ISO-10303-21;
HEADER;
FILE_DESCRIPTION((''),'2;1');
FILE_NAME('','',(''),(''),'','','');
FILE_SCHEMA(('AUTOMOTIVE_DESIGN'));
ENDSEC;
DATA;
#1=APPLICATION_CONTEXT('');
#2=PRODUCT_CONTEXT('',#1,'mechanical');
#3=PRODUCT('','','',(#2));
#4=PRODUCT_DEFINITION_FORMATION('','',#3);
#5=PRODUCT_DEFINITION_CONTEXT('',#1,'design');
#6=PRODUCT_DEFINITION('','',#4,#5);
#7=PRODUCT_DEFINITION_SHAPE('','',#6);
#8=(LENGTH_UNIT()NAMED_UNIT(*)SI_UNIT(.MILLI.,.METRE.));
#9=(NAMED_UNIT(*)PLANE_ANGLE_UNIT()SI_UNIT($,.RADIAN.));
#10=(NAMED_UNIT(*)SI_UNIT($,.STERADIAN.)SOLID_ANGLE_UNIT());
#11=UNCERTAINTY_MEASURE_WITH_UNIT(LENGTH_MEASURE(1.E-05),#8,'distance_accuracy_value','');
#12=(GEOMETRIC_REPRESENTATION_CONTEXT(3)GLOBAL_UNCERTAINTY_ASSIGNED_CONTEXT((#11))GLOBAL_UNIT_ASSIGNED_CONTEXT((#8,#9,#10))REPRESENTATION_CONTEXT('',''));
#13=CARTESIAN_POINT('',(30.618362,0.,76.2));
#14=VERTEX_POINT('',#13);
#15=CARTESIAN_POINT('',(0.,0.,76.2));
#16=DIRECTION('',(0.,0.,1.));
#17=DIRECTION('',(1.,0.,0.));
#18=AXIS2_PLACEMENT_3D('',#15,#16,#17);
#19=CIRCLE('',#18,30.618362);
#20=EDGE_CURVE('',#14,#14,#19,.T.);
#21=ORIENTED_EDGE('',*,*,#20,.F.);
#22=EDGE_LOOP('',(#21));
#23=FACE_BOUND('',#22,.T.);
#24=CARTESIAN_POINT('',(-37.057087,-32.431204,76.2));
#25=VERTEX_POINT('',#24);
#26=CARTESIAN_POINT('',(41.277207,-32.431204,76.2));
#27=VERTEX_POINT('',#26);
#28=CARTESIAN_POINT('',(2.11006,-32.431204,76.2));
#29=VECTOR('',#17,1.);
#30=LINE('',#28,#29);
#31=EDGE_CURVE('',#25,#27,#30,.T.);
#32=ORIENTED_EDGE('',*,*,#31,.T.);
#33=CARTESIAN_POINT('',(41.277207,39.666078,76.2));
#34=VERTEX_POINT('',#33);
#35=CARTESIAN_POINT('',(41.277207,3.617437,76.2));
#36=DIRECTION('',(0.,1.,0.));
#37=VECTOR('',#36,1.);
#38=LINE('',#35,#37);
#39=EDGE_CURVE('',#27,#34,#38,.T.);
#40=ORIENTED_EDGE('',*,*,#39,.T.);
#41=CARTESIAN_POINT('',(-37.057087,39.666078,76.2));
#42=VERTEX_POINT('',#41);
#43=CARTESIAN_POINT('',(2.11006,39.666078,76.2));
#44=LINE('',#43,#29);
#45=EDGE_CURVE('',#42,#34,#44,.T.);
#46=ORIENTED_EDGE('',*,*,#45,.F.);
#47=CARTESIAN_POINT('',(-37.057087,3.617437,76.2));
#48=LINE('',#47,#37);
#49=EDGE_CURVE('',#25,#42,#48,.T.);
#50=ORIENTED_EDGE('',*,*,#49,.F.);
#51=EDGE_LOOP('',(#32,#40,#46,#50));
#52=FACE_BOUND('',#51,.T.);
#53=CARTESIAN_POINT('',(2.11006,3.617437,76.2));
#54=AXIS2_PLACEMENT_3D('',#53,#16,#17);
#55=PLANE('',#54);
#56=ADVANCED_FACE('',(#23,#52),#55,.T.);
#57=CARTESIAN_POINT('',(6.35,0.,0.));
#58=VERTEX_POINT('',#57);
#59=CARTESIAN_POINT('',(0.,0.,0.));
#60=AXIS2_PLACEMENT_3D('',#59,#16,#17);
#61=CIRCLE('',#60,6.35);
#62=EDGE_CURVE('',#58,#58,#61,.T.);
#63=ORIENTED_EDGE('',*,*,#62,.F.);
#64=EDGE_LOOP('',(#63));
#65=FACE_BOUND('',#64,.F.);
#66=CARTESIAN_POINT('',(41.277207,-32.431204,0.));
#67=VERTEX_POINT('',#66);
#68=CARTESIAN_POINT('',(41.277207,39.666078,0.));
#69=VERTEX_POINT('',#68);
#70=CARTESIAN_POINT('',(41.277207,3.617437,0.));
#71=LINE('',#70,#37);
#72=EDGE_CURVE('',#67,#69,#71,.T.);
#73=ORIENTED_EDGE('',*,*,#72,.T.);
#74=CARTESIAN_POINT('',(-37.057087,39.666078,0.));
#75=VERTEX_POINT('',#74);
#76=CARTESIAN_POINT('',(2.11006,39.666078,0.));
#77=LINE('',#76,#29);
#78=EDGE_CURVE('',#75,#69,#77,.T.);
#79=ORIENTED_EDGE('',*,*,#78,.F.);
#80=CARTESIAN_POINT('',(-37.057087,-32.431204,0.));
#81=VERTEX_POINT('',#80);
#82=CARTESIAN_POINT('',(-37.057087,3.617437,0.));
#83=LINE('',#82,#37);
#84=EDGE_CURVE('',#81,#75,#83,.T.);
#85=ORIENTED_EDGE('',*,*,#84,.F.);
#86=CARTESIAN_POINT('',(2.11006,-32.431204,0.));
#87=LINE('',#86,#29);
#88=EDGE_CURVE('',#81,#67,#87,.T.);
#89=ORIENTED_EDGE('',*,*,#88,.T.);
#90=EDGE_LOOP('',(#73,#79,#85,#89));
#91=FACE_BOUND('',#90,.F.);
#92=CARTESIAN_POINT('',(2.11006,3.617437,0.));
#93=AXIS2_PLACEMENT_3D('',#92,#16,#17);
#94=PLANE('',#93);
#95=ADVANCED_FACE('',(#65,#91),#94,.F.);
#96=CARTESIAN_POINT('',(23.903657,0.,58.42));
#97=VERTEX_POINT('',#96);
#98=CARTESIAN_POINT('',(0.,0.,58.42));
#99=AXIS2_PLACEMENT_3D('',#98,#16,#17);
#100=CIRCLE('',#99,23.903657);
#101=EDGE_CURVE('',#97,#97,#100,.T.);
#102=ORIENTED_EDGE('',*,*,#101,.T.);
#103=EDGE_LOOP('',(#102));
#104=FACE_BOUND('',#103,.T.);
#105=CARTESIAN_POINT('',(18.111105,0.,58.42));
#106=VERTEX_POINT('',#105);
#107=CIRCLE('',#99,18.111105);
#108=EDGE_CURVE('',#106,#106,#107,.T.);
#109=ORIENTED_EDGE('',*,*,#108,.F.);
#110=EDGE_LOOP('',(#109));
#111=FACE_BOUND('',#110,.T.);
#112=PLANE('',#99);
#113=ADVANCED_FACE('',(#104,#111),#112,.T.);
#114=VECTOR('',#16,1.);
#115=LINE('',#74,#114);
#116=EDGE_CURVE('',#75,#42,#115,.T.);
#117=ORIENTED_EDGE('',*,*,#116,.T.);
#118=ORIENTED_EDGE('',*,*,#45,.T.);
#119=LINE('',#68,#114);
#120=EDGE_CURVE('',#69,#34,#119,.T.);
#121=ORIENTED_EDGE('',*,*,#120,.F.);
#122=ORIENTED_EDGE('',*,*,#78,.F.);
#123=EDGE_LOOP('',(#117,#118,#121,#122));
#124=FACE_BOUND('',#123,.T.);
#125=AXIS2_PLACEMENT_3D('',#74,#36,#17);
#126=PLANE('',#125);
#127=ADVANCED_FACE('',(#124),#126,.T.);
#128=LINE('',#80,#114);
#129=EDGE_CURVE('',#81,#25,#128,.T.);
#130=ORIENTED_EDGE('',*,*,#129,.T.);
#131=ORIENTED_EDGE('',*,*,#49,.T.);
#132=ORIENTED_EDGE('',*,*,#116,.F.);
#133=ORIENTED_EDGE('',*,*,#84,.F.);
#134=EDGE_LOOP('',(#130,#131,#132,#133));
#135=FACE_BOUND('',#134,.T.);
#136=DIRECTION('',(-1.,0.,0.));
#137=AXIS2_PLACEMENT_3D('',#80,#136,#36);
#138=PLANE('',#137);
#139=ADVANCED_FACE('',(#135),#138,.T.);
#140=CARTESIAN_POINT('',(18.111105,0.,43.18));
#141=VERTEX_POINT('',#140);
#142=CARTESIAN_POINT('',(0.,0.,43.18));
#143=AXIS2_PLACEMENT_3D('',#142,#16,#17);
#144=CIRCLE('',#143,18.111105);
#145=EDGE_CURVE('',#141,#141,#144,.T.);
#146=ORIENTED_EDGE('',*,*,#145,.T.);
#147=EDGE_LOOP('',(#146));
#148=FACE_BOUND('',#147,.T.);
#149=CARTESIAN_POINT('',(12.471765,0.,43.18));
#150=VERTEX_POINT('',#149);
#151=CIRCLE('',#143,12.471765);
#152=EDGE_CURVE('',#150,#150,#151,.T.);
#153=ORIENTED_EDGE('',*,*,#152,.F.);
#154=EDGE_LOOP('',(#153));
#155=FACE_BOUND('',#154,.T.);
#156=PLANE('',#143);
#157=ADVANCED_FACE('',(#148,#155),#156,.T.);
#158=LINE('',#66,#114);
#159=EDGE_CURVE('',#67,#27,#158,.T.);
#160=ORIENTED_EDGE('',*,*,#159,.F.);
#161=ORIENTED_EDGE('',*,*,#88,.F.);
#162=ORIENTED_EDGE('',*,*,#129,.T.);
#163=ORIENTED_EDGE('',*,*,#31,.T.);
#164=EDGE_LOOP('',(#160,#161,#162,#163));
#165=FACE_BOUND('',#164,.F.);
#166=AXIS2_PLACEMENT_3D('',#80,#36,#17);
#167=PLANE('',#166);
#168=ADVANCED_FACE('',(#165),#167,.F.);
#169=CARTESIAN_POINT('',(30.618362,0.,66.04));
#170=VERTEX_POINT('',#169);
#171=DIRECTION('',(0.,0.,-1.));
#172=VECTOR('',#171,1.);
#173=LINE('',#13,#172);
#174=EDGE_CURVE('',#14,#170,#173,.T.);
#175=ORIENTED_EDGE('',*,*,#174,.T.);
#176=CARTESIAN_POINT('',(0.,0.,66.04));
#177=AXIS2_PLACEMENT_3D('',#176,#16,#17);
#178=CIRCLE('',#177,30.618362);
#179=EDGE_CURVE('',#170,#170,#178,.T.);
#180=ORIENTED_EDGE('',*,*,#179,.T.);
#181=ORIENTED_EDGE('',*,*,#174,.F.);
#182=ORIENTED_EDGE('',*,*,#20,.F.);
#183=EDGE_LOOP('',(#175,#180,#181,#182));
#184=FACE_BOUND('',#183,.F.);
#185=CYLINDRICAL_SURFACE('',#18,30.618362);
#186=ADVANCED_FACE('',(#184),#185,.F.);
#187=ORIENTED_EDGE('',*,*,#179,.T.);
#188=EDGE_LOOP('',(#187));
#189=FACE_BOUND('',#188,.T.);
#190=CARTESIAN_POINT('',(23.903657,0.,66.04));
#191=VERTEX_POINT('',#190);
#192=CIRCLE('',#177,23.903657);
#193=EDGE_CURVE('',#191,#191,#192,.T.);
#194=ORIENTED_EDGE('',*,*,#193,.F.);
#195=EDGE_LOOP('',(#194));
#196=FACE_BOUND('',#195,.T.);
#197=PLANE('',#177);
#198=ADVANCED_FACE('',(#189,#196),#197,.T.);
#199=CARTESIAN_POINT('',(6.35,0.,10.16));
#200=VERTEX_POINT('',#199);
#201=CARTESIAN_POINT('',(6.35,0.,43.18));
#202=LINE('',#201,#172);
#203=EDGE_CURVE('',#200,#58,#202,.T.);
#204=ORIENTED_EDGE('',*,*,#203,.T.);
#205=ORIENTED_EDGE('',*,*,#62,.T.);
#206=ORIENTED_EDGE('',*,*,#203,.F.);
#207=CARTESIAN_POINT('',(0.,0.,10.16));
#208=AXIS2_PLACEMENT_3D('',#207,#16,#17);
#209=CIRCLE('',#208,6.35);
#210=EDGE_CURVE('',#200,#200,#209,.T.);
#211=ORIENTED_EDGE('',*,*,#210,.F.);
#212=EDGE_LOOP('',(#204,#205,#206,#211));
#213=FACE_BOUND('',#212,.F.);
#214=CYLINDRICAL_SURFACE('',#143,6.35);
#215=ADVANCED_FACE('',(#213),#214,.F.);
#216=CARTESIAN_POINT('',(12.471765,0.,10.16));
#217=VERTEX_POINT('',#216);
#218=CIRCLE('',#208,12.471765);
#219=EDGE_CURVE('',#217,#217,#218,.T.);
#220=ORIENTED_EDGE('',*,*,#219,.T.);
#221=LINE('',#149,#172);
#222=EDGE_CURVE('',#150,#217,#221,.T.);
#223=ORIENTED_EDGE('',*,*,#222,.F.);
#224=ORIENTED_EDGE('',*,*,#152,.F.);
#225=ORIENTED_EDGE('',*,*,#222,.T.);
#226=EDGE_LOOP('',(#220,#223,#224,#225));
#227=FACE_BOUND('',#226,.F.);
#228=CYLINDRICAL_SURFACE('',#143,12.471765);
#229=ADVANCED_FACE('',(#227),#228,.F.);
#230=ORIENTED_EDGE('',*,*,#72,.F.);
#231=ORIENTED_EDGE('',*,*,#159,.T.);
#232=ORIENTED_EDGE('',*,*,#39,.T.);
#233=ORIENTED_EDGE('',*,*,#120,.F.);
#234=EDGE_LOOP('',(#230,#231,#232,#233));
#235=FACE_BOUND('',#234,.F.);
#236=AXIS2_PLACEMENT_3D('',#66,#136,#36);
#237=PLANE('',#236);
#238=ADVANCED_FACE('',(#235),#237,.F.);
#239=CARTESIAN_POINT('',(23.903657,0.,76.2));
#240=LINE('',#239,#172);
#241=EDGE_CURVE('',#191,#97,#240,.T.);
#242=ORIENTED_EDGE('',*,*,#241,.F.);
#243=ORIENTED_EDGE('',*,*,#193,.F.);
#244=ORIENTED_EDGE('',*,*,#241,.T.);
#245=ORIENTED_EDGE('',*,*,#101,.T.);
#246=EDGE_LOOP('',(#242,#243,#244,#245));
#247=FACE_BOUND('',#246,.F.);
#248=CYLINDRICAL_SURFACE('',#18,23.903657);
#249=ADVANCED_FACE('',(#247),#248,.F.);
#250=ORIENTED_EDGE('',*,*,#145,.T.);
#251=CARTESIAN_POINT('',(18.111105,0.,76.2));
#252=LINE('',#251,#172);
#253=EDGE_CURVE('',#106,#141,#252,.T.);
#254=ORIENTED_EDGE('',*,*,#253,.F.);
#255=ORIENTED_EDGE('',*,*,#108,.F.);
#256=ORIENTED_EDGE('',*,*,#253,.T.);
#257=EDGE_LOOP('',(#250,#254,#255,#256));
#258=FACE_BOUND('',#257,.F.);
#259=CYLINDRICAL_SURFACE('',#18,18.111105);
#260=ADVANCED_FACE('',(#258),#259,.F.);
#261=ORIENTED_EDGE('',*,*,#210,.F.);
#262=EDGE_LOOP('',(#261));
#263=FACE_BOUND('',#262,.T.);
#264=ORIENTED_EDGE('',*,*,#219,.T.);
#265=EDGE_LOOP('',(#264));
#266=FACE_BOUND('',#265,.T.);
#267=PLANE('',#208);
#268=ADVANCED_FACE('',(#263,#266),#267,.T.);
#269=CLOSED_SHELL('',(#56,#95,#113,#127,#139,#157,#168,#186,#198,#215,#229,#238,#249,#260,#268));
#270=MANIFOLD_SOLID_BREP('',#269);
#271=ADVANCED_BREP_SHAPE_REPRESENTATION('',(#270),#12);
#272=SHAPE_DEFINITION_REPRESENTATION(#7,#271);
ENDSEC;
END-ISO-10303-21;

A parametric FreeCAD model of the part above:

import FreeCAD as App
import Part
import Sketcher
from FreeCAD import Vector
Q = App.Units.Quantity


def add_polygon(sketch, points):
    """Adds a closed chain of lines whose ends are joined by coincident constraints."""
    first, n = sketch.GeometryCount, len(points)
    for a, b in zip(points, points[1:] + points[:1]):
        sketch.addGeometry(Part.LineSegment(App.Vector(*a, 0), App.Vector(*b, 0)), False)
    for i in range(n):
        sketch.addConstraint(Sketcher.Constraint("Coincident", first + i, 2, first + (i + 1) % n, 1))

doc = App.newDocument("Part")
body = doc.addObject("PartDesign::Body", "Body")

# Sketch on XY plane
sketch1 = body.newObject("Sketcher::SketchObject", "Sketch")
sketch1.AttachmentSupport = (doc.getObject("XY_Plane"), [""])
sketch1.MapMode = "FlatFace"
add_polygon(sketch1, [(-37, 40), (-37, -32), (41, -32), (41, 40)])  # lines 0-3
sketch1.addConstraint([
    Sketcher.Constraint("Vertical", 0),
    Sketcher.Constraint("Horizontal", 1),
    Sketcher.Constraint("Vertical", 2),
    Sketcher.Constraint("Horizontal", 3),
    Sketcher.Constraint("DistanceX", 1, 1, 1, 2, Q("78.334294 mm")),
    Sketcher.Constraint("DistanceY", 0, 2, 0, 1, Q("72.097283 mm")),
    Sketcher.Constraint("DistanceY", -1, 1, 2, 2, Q("39.666078 mm")),
    Sketcher.Constraint("DistanceX", 0, 2, -1, 1, Q("37.057087 mm")),
])
pad1 = body.newObject("PartDesign::Pad", "Pad")
pad1.Profile = sketch1
pad1.Length = Q("3 in")

# Sketch on XY plane
sketch2 = body.newObject("Sketcher::SketchObject", "Sketch001")
sketch2.AttachmentSupport = (doc.getObject("XY_Plane"), [""])
sketch2.MapMode = "FlatFace"
sketch2.AttachmentOffset = App.Placement(Vector(0, 0, 3 * 25.4), App.Rotation())
sketch2.addGeometry(Part.Circle(Vector(0, 0, 0), Vector(0, 0, 1), 18), False)
sketch2.addConstraint([
    Sketcher.Constraint("Coincident", 0, 3, -1, 1),
    Sketcher.Constraint("Diameter", 0, Q("36.22221 mm")),
])
pocket1 = body.newObject("PartDesign::Pocket", "Pocket")
pocket1.Profile = sketch2
pocket1.Length = Q("1.3 in")

# Sketch on XY plane
sketch3 = body.newObject("Sketcher::SketchObject", "Sketch002")
sketch3.AttachmentSupport = (doc.getObject("XY_Plane"), [""])
sketch3.MapMode = "FlatFace"
sketch3.AttachmentOffset = App.Placement(Vector(0, 0, 1.7 * 25.4), App.Rotation())
sketch3.addGeometry(Part.Circle(Vector(0, 0, 0), Vector(0, 0, 1), 6), False)
sketch3.addConstraint([
    Sketcher.Constraint("Coincident", 0, 3, -1, 1),
    Sketcher.Constraint("Diameter", 0, Q("0.5 in")),
])
pocket2 = body.newObject("PartDesign::Pocket", "Pocket001")
pocket2.Profile = sketch3
pocket2.Length = Q("2 in")

# Sketch on XY plane
sketch4 = body.newObject("Sketcher::SketchObject", "Sketch003")
sketch4.AttachmentSupport = (doc.getObject("XY_Plane"), [""])
sketch4.MapMode = "FlatFace"
sketch4.AttachmentOffset = App.Placement(Vector(0, 0, 1.7 * 25.4), App.Rotation())
sketch4.addGeometry(Part.Circle(Vector(0, 0, 0), Vector(0, 0, 1), 12), False)
sketch4.addConstraint([
    Sketcher.Constraint("Coincident", 0, 3, -1, 1),
    Sketcher.Constraint("Diameter", 0, Q("24.94353 mm")),
])
pocket3 = body.newObject("PartDesign::Pocket", "Pocket002")
pocket3.Profile = sketch4
pocket3.Length = Q("1.3 in")

# Sketch on XY plane
sketch5 = body.newObject("Sketcher::SketchObject", "Sketch004")
sketch5.AttachmentSupport = (doc.getObject("XY_Plane"), [""])
sketch5.MapMode = "FlatFace"
sketch5.AttachmentOffset = App.Placement(Vector(0, 0, 3 * 25.4), App.Rotation())
sketch5.addGeometry(Part.Circle(Vector(0, 0, 0), Vector(0, 0, 1), 24), False)
sketch5.addConstraint([
    Sketcher.Constraint("Coincident", 0, 3, -1, 1),
    Sketcher.Constraint("Diameter", 0, Q("47.807314 mm")),
])
pocket4 = body.newObject("PartDesign::Pocket", "Pocket003")
pocket4.Profile = sketch5
pocket4.Length = Q("0.7 in")

# Sketch on XY plane
sketch6 = body.newObject("Sketcher::SketchObject", "Sketch005")
sketch6.AttachmentSupport = (doc.getObject("XY_Plane"), [""])
sketch6.MapMode = "FlatFace"
sketch6.AttachmentOffset = App.Placement(Vector(0, 0, 3 * 25.4), App.Rotation())
sketch6.addGeometry(Part.Circle(Vector(0, 0, 0), Vector(0, 0, 1), 31), False)
sketch6.addConstraint([
    Sketcher.Constraint("Coincident", 0, 3, -1, 1),
    Sketcher.Constraint("Diameter", 0, Q("61.236724 mm")),
])
pocket5 = body.newObject("PartDesign::Pocket", "Pocket004")
pocket5.Profile = sketch6
pocket5.Length = Q("0.4 in")

doc.recompute()
